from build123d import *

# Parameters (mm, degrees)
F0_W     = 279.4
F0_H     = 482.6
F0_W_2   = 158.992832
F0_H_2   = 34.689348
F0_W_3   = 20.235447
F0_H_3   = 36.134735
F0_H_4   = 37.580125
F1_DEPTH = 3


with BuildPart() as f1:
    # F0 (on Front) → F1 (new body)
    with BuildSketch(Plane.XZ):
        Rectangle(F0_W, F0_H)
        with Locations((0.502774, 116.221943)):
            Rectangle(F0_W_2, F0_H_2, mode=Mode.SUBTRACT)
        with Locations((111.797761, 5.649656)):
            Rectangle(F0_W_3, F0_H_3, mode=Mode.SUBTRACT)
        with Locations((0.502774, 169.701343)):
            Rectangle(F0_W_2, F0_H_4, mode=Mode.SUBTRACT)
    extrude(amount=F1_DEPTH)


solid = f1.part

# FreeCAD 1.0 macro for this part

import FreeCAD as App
import Part
import Sketcher
Q = App.Units.Quantity

doc = App.newDocument("Part")
params = doc.addObject("Spreadsheet::Sheet", "Params")
for row, (alias, value) in enumerate([
    ("sketch1_width", "11 in"),
    ("sketch1_height", "19 in"),
    ("pad1_length", "3 mm"),
], start=1):
    params.set(f"A{row}", alias)
    params.set(f"B{row}", "=" + value)
    params.setAlias(f"B{row}", alias)

body = doc.addObject("PartDesign::Body", "Body")

# Sketch on XZ plane
sketch1 = doc.addObject("Sketcher::SketchObject", "Sketch")
body.addObject(sketch1)
sketch1.AttachmentSupport = (doc.XZ_Plane, [""])
sketch1.MapMode = "FlatFace"
sketch1.addGeometry(Part.LineSegment(App.Vector(-140, 241, 0), App.Vector(-140, -241, 0)), False)
sketch1.addGeometry(Part.LineSegment(App.Vector(-140, -241, 0), App.Vector(140, -241, 0)), False)
sketch1.addGeometry(Part.LineSegment(App.Vector(140, -241, 0), App.Vector(140, 241, 0)), False)
sketch1.addGeometry(Part.LineSegment(App.Vector(140, 241, 0), App.Vector(-140, 241, 0)), False)
sketch1.addGeometry(Part.LineSegment(App.Vector(122, -12, 0), App.Vector(102, -12, 0)), False)
sketch1.addGeometry(Part.LineSegment(App.Vector(102, -12, 0), App.Vector(102, 24, 0)), False)
sketch1.addGeometry(Part.LineSegment(App.Vector(102, 24, 0), App.Vector(122, 24, 0)), False)
sketch1.addGeometry(Part.LineSegment(App.Vector(122, 24, 0), App.Vector(122, -12, 0)), False)
sketch1.addGeometry(Part.LineSegment(App.Vector(80, 99, 0), App.Vector(-79, 99, 0)), False)
sketch1.addGeometry(Part.LineSegment(App.Vector(-79, 99, 0), App.Vector(-79, 134, 0)), False)
sketch1.addGeometry(Part.LineSegment(App.Vector(-79, 134, 0), App.Vector(80, 134, 0)), False)
sketch1.addGeometry(Part.LineSegment(App.Vector(80, 134, 0), App.Vector(80, 99, 0)), False)
sketch1.addGeometry(Part.LineSegment(App.Vector(80, 151, 0), App.Vector(-79, 151, 0)), False)
sketch1.addGeometry(Part.LineSegment(App.Vector(-79, 151, 0), App.Vector(-79, 188, 0)), False)
sketch1.addGeometry(Part.LineSegment(App.Vector(-79, 188, 0), App.Vector(80, 188, 0)), False)
sketch1.addGeometry(Part.LineSegment(App.Vector(80, 188, 0), App.Vector(80, 151, 0)), False)
sketch1.addConstraint(Sketcher.Constraint("Coincident", 0, 2, 1, 1))
sketch1.addConstraint(Sketcher.Constraint("Coincident", 1, 2, 2, 1))
sketch1.addConstraint(Sketcher.Constraint("Coincident", 2, 2, 3, 1))
sketch1.addConstraint(Sketcher.Constraint("Coincident", 3, 2, 0, 1))
sketch1.addConstraint(Sketcher.Constraint("Coincident", 4, 2, 5, 1))
sketch1.addConstraint(Sketcher.Constraint("Coincident", 5, 2, 6, 1))
sketch1.addConstraint(Sketcher.Constraint("Coincident", 6, 2, 7, 1))
sketch1.addConstraint(Sketcher.Constraint("Coincident", 7, 2, 4, 1))
sketch1.addConstraint(Sketcher.Constraint("Coincident", 8, 2, 9, 1))
sketch1.addConstraint(Sketcher.Constraint("Coincident", 9, 2, 10, 1))
sketch1.addConstraint(Sketcher.Constraint("Coincident", 10, 2, 11, 1))
sketch1.addConstraint(Sketcher.Constraint("Coincident", 11, 2, 8, 1))
sketch1.addConstraint(Sketcher.Constraint("Coincident", 12, 2, 13, 1))
sketch1.addConstraint(Sketcher.Constraint("Coincident", 13, 2, 14, 1))
sketch1.addConstraint(Sketcher.Constraint("Coincident", 14, 2, 15, 1))
sketch1.addConstraint(Sketcher.Constraint("Coincident", 15, 2, 12, 1))
sketch1.addConstraint(Sketcher.Constraint("Vertical", 0))
sketch1.addConstraint(Sketcher.Constraint("Horizontal", 1))
sketch1.addConstraint(Sketcher.Constraint("Vertical", 2))
sketch1.addConstraint(Sketcher.Constraint("Horizontal", 3))
sketch1.addConstraint(Sketcher.Constraint("Horizontal", 4))
sketch1.addConstraint(Sketcher.Constraint("Vertical", 5))
sketch1.addConstraint(Sketcher.Constraint("Horizontal", 6))
sketch1.addConstraint(Sketcher.Constraint("Vertical", 7))
sketch1.addConstraint(Sketcher.Constraint("Horizontal", 8))
sketch1.addConstraint(Sketcher.Constraint("Vertical", 9))
sketch1.addConstraint(Sketcher.Constraint("Horizontal", 10))
sketch1.addConstraint(Sketcher.Constraint("Vertical", 11))
sketch1.addConstraint(Sketcher.Constraint("Horizontal", 12))
sketch1.addConstraint(Sketcher.Constraint("Vertical", 13))
sketch1.addConstraint(Sketcher.Constraint("Horizontal", 14))
sketch1.addConstraint(Sketcher.Constraint("Vertical", 15))
sketch1.addConstraint(Sketcher.Constraint("Symmetric", 0, 2, 2, 2, -1, 1))
sketch1.addConstraint(Sketcher.Constraint("Vertical", 9, 2, 12, 2))
sketch1.addConstraint(Sketcher.Constraint("Vertical", 11, 2, 14, 2))
sketch1.addConstraint(Sketcher.Constraint("DistanceX", 1, 1, 1, 2, Q("11 in")))
sketch1.addConstraint(Sketcher.Constraint("DistanceY", 0, 2, 0, 1, Q("19 in")))
sketch1.addConstraint(Sketcher.Constraint("DistanceX", 8, 2, 8, 1, Q("158.992832 mm")))
sketch1.addConstraint(Sketcher.Constraint("DistanceY", 9, 1, 9, 2, Q("34.689348 mm")))
sketch1.addConstraint(Sketcher.Constraint("DistanceX", 4, 2, 4, 1, Q("20.235447 mm")))
sketch1.addConstraint(Sketcher.Constraint("DistanceY", 5, 1, 5, 2, Q("36.134735 mm")))
sketch1.addConstraint(Sketcher.Constraint("DistanceY", 13, 1, 13, 2, Q("37.580125 mm")))
sketch1.addConstraint(Sketcher.Constraint("DistanceY", 4, 2, -1, 1, Q("12.417711 mm")))
sketch1.addConstraint(Sketcher.Constraint("DistanceX", 8, 2, -1, 1, Q("78.993642 mm")))
sketch1.addConstraint(Sketcher.Constraint("DistanceY", -1, 1, 8, 2, Q("98.877269 mm")))
sketch1.addConstraint(Sketcher.Constraint("DistanceY", -1, 1, 12, 2, Q("150.911281 mm")))
sketch1.addConstraint(Sketcher.Constraint("DistanceX", 8, 2, 5, 2, Q("180.673679 mm")))
sketch1.setExpression("Constraints[35]", "Params.sketch1_width")
sketch1.setExpression("Constraints[36]", "Params.sketch1_height")
pad1 = doc.addObject("PartDesign::Pad", "Pad")
body.addObject(pad1)
pad1.Profile = sketch1
pad1.setExpression("Length", "Params.pad1_length")

doc.recompute()
